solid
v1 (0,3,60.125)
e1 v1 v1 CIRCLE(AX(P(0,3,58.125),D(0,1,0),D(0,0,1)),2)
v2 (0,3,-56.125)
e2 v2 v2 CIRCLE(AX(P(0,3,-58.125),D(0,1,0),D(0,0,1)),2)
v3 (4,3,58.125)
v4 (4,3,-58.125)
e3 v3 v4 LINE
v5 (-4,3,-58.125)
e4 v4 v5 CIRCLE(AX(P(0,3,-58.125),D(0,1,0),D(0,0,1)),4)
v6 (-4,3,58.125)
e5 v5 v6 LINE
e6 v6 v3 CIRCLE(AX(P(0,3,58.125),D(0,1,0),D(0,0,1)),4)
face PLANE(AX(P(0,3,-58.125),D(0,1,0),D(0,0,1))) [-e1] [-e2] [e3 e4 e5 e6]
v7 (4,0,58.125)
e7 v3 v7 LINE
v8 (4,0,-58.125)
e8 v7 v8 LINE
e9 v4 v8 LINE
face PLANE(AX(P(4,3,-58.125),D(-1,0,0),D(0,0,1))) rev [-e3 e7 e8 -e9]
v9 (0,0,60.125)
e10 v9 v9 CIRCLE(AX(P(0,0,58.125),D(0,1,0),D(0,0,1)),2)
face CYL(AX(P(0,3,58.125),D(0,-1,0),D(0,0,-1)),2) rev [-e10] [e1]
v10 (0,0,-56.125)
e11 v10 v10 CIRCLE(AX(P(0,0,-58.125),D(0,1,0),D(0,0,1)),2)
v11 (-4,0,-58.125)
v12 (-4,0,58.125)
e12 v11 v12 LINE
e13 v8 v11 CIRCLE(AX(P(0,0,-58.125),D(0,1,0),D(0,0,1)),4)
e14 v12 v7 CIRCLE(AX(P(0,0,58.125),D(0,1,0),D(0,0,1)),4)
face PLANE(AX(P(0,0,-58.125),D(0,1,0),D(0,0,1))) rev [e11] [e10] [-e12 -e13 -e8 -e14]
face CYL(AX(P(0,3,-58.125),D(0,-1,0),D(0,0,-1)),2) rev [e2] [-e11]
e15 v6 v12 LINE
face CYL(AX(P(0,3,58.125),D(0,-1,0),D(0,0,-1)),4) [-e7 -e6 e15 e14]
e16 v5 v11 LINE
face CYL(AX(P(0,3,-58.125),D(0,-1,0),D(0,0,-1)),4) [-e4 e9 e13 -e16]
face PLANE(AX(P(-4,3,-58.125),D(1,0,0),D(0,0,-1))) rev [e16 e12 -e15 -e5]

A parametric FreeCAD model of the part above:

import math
import FreeCAD as App
import Part
import Sketcher

doc = App.newDocument("Part")
body = doc.addObject("PartDesign::Body", "Body")

sketch1 = doc.addObject("Sketcher::SketchObject", "Sketch")
body.addObject(sketch1)
sketch1.AttachmentSupport = (doc.XZ_Plane, [""])
sketch1.MapMode = "FlatFace"
sketch1.addGeometry([
    Part.LineSegment(App.Vector(4, 58.125, 0), App.Vector(4, -58.125, 0)),
    Part.ArcOfCircle(Part.Circle(App.Vector(0, -58.125, 0), App.Vector(0, 0, 1), 4), math.radians(180), math.radians(360)),
    Part.LineSegment(App.Vector(-4, -58.125, 0), App.Vector(-4, 58.125, 0)),
    Part.ArcOfCircle(Part.Circle(App.Vector(0, 58.125, 0), App.Vector(0, 0, 1), 4), math.radians(0), math.radians(180)),
    Part.Circle(App.Vector(0, 58.125, 0), App.Vector(0, 0, 1), 2),
    Part.Circle(App.Vector(0, -58.125, 0), App.Vector(0, 0, 1), 2),
], False)
sketch1.addConstraint([
    Sketcher.Constraint("Tangent", 0, 2, 1, 2),
    Sketcher.Constraint("Tangent", 1, 1, 2, 1),
    Sketcher.Constraint("Tangent", 2, 2, 3, 2),
    Sketcher.Constraint("Tangent", 3, 1, 0, 1),
    Sketcher.Constraint("Vertical", 0),
    Sketcher.Constraint("Vertical", 2),
    Sketcher.Constraint("Coincident", 4, 3, 3, 3),
    Sketcher.Constraint("Coincident", 5, 3, 1, 3),
    Sketcher.Constraint("Equal", 4, 5),
    Sketcher.Constraint("Symmetric", 1, 3, 3, 3, -1, 1),
    Sketcher.Constraint("Diameter", 4, 4.0),
    Sketcher.Constraint("Radius", 1, 4.0),
    Sketcher.Constraint("DistanceY", 0, 2, 0, 1, 116.25),
])
pad1 = doc.addObject("PartDesign::Pad", "Pad")
body.addObject(pad1)
pad1.Profile = sketch1
pad1.Length = 3
pad1.Reversed = True

doc.recompute()
